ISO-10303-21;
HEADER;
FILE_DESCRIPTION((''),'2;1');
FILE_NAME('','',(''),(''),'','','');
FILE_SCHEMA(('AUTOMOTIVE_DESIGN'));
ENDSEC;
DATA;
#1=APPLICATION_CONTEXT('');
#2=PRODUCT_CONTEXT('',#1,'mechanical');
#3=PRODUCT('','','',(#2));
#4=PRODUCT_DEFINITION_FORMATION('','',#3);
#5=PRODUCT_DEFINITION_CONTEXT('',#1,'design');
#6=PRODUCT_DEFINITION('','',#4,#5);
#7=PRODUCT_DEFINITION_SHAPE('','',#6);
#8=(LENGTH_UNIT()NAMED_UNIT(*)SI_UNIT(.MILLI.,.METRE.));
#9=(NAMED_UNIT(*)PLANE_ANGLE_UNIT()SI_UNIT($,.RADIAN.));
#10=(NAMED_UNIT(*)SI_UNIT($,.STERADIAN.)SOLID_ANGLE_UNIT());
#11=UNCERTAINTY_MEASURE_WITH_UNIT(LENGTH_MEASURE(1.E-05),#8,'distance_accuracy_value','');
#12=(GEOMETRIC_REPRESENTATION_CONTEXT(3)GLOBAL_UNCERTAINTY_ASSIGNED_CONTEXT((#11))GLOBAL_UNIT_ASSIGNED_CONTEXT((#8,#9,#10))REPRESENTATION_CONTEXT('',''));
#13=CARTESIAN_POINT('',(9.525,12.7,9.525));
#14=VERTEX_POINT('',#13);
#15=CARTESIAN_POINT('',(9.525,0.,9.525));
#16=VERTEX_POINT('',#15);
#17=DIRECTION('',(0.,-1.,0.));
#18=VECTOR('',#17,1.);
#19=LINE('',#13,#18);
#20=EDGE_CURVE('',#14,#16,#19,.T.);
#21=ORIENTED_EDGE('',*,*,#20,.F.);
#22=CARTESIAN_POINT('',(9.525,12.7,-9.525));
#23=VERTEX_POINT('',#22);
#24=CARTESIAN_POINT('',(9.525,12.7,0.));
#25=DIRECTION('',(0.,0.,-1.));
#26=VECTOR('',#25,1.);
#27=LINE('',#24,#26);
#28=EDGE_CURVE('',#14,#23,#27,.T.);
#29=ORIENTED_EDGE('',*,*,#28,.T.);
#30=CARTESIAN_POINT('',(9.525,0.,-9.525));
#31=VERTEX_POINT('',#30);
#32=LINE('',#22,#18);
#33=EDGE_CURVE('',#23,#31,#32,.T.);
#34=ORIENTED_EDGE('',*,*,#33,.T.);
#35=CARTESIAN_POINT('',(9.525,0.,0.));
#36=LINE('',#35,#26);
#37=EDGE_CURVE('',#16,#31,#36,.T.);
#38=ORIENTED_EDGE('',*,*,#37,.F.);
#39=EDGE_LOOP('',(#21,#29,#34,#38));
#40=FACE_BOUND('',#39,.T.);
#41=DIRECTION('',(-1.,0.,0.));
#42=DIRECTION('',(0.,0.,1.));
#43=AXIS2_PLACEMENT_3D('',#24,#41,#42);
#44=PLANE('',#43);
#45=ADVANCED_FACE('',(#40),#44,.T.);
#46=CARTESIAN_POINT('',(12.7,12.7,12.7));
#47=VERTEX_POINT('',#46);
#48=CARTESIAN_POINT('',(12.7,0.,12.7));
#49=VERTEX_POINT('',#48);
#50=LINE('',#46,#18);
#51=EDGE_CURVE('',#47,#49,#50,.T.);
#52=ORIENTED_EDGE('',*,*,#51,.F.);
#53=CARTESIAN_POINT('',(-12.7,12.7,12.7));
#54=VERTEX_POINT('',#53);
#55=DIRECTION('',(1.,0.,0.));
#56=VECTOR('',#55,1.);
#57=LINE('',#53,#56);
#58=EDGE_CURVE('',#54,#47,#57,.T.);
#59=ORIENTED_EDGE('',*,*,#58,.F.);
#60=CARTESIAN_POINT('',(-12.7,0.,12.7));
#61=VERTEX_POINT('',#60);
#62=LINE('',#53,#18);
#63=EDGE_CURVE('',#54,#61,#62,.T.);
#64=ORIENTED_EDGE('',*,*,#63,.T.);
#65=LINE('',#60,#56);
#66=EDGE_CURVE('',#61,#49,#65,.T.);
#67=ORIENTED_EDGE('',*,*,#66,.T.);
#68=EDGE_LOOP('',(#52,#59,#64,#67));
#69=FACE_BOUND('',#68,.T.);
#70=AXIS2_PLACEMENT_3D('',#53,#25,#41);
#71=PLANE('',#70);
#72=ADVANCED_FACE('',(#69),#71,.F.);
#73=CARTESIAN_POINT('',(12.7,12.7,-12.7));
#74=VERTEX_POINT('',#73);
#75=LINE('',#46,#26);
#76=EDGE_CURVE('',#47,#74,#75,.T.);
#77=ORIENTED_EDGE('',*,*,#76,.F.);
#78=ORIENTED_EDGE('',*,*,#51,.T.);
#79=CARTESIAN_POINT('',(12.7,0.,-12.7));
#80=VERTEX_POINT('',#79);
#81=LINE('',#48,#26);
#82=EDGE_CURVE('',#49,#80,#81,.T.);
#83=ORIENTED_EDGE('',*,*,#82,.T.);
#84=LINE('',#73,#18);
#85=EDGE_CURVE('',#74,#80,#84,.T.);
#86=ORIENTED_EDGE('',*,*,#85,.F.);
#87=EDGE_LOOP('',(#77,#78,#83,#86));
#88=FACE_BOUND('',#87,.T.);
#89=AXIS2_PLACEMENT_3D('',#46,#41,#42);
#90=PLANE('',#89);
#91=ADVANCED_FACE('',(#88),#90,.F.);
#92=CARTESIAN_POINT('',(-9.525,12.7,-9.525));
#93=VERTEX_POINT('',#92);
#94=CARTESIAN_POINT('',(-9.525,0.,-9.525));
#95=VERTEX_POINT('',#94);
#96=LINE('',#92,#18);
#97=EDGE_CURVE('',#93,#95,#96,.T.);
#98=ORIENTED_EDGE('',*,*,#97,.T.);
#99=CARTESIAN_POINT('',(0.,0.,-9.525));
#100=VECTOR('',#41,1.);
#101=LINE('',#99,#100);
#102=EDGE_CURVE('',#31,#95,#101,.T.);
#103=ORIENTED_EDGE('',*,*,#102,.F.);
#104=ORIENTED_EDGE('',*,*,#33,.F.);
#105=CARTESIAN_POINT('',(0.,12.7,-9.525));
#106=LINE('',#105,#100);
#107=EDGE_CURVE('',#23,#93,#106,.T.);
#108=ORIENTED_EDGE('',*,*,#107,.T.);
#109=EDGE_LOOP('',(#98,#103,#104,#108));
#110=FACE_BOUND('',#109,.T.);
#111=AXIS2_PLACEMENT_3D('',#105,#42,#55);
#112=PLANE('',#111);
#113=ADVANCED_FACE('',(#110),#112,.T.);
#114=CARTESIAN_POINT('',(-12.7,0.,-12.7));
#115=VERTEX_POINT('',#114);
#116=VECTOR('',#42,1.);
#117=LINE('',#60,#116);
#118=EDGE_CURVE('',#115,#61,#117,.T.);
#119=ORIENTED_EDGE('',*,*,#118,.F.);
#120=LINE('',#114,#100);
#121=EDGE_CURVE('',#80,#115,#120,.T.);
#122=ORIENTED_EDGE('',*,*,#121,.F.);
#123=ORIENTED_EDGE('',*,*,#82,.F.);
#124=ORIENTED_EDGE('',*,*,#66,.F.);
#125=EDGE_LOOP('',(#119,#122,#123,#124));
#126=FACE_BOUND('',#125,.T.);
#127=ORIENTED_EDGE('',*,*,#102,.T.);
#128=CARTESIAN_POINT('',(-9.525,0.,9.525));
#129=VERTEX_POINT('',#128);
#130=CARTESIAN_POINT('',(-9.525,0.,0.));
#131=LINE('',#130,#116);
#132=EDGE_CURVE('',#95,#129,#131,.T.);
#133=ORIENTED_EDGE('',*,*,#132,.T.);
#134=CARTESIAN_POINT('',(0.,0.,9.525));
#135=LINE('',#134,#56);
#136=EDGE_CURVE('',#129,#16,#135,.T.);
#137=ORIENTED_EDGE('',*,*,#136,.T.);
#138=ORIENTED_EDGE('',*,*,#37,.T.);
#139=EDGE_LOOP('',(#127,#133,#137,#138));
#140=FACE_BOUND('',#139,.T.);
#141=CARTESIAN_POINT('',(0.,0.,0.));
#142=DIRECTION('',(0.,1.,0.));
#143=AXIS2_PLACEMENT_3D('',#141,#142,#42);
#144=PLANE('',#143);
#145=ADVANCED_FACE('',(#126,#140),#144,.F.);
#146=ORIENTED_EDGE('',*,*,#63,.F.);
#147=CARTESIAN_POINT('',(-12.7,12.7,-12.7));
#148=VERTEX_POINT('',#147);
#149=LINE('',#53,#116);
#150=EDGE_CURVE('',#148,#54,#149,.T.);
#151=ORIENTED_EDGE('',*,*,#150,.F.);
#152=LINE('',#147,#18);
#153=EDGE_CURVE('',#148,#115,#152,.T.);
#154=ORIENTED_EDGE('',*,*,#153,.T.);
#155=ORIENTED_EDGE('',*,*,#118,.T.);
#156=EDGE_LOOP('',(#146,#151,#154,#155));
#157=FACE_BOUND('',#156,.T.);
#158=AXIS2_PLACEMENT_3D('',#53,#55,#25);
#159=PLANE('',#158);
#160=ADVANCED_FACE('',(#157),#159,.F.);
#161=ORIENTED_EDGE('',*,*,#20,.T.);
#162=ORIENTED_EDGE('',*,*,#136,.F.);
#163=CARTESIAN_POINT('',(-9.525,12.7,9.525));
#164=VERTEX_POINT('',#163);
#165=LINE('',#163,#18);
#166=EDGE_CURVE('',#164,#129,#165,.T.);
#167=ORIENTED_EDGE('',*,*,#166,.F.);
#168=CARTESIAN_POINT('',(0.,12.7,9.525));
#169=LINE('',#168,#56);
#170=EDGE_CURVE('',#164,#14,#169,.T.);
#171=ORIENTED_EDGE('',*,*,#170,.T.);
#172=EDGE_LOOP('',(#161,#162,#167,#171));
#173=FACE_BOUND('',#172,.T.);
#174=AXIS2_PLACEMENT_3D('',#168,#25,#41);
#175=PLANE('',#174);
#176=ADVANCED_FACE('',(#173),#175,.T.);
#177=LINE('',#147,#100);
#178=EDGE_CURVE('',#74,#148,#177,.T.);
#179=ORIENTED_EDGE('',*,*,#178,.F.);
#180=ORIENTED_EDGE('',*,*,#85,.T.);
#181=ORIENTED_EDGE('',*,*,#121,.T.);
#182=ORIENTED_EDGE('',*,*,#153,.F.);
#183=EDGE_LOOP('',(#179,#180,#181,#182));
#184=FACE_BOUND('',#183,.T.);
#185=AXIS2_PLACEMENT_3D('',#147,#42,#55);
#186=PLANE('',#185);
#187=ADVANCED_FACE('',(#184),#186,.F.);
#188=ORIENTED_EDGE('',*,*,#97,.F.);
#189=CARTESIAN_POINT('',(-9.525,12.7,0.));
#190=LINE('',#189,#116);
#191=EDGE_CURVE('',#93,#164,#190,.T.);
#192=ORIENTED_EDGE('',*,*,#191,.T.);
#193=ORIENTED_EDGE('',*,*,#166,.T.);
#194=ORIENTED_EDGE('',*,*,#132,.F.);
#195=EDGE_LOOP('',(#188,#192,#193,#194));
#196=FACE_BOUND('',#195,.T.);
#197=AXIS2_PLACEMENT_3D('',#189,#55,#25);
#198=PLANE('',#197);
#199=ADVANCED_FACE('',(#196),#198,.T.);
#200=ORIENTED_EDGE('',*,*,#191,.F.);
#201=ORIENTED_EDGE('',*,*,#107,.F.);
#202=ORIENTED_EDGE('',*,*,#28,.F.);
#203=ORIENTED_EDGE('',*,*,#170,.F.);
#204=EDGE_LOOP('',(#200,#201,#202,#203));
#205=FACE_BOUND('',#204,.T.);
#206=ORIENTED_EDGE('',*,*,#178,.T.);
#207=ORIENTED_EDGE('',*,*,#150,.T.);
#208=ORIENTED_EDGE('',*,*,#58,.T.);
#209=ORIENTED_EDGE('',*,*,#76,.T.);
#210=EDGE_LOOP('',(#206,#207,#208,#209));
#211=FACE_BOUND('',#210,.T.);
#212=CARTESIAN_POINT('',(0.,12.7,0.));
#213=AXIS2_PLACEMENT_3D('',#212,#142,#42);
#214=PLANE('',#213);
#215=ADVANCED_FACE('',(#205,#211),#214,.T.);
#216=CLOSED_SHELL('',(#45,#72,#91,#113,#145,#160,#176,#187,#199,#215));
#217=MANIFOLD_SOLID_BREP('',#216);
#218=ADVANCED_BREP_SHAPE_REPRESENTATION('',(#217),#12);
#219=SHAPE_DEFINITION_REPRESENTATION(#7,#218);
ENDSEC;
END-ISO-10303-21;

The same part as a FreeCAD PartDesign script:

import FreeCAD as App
import Part
import Sketcher
from FreeCAD import Vector
Q = App.Units.Quantity

doc = App.newDocument("Part")
body = doc.addObject("PartDesign::Body", "Body")

sketch1 = body.newObject("Sketcher::SketchObject", "Sketch")
sketch1.AttachmentSupport = (doc.getObject("XZ_Plane"), [""])
sketch1.MapMode = "FlatFace"
sketch1.addGeometry([
    Part.LineSegment(Vector(-13, -13, 0), Vector(-13, 13, 0)),
    Part.LineSegment(Vector(-13, 13, 0), Vector(13, 13, 0)),
    Part.LineSegment(Vector(13, 13, 0), Vector(13, -13, 0)),
    Part.LineSegment(Vector(13, -13, 0), Vector(-13, -13, 0)),
    Part.LineSegment(Vector(10, 10, 0), Vector(-10, 10, 0)),
    Part.LineSegment(Vector(-10, 10, 0), Vector(-10, -10, 0)),
    Part.LineSegment(Vector(-10, -10, 0), Vector(10, -10, 0)),
    Part.LineSegment(Vector(10, -10, 0), Vector(10, 10, 0)),
], False)
sketch1.addConstraint([
    Sketcher.Constraint("Coincident", 0, 2, 1, 1),
    Sketcher.Constraint("Coincident", 1, 2, 2, 1),
    Sketcher.Constraint("Coincident", 2, 2, 3, 1),
    Sketcher.Constraint("Coincident", 3, 2, 0, 1),
    Sketcher.Constraint("Coincident", 4, 2, 5, 1),
    Sketcher.Constraint("Coincident", 5, 2, 6, 1),
    Sketcher.Constraint("Coincident", 6, 2, 7, 1),
    Sketcher.Constraint("Coincident", 7, 2, 4, 1),
    Sketcher.Constraint("Vertical", 0),
    Sketcher.Constraint("Horizontal", 1),
    Sketcher.Constraint("Vertical", 2),
    Sketcher.Constraint("Horizontal", 3),
    Sketcher.Constraint("Horizontal", 4),
    Sketcher.Constraint("Vertical", 5),
    Sketcher.Constraint("Horizontal", 6),
    Sketcher.Constraint("Vertical", 7),
    Sketcher.Constraint("Symmetric", 0, 2, 2, 2, -1, 1),
    Sketcher.Constraint("Symmetric", 4, 2, 6, 2, -1, 1),
    Sketcher.Constraint("Equal", 3, 0),
    Sketcher.Constraint("Equal", 6, 5),
    Sketcher.Constraint("DistanceX", 1, 1, 1, 2, Q("1 in")),
    Sketcher.Constraint("DistanceX", 4, 2, 4, 1, Q("0.75 in")),
])
pad1 = body.newObject("PartDesign::Pad", "Pad")
pad1.Profile = sketch1
pad1.Length = Q("0.5 in")
pad1.Reversed = True

doc.recompute()
